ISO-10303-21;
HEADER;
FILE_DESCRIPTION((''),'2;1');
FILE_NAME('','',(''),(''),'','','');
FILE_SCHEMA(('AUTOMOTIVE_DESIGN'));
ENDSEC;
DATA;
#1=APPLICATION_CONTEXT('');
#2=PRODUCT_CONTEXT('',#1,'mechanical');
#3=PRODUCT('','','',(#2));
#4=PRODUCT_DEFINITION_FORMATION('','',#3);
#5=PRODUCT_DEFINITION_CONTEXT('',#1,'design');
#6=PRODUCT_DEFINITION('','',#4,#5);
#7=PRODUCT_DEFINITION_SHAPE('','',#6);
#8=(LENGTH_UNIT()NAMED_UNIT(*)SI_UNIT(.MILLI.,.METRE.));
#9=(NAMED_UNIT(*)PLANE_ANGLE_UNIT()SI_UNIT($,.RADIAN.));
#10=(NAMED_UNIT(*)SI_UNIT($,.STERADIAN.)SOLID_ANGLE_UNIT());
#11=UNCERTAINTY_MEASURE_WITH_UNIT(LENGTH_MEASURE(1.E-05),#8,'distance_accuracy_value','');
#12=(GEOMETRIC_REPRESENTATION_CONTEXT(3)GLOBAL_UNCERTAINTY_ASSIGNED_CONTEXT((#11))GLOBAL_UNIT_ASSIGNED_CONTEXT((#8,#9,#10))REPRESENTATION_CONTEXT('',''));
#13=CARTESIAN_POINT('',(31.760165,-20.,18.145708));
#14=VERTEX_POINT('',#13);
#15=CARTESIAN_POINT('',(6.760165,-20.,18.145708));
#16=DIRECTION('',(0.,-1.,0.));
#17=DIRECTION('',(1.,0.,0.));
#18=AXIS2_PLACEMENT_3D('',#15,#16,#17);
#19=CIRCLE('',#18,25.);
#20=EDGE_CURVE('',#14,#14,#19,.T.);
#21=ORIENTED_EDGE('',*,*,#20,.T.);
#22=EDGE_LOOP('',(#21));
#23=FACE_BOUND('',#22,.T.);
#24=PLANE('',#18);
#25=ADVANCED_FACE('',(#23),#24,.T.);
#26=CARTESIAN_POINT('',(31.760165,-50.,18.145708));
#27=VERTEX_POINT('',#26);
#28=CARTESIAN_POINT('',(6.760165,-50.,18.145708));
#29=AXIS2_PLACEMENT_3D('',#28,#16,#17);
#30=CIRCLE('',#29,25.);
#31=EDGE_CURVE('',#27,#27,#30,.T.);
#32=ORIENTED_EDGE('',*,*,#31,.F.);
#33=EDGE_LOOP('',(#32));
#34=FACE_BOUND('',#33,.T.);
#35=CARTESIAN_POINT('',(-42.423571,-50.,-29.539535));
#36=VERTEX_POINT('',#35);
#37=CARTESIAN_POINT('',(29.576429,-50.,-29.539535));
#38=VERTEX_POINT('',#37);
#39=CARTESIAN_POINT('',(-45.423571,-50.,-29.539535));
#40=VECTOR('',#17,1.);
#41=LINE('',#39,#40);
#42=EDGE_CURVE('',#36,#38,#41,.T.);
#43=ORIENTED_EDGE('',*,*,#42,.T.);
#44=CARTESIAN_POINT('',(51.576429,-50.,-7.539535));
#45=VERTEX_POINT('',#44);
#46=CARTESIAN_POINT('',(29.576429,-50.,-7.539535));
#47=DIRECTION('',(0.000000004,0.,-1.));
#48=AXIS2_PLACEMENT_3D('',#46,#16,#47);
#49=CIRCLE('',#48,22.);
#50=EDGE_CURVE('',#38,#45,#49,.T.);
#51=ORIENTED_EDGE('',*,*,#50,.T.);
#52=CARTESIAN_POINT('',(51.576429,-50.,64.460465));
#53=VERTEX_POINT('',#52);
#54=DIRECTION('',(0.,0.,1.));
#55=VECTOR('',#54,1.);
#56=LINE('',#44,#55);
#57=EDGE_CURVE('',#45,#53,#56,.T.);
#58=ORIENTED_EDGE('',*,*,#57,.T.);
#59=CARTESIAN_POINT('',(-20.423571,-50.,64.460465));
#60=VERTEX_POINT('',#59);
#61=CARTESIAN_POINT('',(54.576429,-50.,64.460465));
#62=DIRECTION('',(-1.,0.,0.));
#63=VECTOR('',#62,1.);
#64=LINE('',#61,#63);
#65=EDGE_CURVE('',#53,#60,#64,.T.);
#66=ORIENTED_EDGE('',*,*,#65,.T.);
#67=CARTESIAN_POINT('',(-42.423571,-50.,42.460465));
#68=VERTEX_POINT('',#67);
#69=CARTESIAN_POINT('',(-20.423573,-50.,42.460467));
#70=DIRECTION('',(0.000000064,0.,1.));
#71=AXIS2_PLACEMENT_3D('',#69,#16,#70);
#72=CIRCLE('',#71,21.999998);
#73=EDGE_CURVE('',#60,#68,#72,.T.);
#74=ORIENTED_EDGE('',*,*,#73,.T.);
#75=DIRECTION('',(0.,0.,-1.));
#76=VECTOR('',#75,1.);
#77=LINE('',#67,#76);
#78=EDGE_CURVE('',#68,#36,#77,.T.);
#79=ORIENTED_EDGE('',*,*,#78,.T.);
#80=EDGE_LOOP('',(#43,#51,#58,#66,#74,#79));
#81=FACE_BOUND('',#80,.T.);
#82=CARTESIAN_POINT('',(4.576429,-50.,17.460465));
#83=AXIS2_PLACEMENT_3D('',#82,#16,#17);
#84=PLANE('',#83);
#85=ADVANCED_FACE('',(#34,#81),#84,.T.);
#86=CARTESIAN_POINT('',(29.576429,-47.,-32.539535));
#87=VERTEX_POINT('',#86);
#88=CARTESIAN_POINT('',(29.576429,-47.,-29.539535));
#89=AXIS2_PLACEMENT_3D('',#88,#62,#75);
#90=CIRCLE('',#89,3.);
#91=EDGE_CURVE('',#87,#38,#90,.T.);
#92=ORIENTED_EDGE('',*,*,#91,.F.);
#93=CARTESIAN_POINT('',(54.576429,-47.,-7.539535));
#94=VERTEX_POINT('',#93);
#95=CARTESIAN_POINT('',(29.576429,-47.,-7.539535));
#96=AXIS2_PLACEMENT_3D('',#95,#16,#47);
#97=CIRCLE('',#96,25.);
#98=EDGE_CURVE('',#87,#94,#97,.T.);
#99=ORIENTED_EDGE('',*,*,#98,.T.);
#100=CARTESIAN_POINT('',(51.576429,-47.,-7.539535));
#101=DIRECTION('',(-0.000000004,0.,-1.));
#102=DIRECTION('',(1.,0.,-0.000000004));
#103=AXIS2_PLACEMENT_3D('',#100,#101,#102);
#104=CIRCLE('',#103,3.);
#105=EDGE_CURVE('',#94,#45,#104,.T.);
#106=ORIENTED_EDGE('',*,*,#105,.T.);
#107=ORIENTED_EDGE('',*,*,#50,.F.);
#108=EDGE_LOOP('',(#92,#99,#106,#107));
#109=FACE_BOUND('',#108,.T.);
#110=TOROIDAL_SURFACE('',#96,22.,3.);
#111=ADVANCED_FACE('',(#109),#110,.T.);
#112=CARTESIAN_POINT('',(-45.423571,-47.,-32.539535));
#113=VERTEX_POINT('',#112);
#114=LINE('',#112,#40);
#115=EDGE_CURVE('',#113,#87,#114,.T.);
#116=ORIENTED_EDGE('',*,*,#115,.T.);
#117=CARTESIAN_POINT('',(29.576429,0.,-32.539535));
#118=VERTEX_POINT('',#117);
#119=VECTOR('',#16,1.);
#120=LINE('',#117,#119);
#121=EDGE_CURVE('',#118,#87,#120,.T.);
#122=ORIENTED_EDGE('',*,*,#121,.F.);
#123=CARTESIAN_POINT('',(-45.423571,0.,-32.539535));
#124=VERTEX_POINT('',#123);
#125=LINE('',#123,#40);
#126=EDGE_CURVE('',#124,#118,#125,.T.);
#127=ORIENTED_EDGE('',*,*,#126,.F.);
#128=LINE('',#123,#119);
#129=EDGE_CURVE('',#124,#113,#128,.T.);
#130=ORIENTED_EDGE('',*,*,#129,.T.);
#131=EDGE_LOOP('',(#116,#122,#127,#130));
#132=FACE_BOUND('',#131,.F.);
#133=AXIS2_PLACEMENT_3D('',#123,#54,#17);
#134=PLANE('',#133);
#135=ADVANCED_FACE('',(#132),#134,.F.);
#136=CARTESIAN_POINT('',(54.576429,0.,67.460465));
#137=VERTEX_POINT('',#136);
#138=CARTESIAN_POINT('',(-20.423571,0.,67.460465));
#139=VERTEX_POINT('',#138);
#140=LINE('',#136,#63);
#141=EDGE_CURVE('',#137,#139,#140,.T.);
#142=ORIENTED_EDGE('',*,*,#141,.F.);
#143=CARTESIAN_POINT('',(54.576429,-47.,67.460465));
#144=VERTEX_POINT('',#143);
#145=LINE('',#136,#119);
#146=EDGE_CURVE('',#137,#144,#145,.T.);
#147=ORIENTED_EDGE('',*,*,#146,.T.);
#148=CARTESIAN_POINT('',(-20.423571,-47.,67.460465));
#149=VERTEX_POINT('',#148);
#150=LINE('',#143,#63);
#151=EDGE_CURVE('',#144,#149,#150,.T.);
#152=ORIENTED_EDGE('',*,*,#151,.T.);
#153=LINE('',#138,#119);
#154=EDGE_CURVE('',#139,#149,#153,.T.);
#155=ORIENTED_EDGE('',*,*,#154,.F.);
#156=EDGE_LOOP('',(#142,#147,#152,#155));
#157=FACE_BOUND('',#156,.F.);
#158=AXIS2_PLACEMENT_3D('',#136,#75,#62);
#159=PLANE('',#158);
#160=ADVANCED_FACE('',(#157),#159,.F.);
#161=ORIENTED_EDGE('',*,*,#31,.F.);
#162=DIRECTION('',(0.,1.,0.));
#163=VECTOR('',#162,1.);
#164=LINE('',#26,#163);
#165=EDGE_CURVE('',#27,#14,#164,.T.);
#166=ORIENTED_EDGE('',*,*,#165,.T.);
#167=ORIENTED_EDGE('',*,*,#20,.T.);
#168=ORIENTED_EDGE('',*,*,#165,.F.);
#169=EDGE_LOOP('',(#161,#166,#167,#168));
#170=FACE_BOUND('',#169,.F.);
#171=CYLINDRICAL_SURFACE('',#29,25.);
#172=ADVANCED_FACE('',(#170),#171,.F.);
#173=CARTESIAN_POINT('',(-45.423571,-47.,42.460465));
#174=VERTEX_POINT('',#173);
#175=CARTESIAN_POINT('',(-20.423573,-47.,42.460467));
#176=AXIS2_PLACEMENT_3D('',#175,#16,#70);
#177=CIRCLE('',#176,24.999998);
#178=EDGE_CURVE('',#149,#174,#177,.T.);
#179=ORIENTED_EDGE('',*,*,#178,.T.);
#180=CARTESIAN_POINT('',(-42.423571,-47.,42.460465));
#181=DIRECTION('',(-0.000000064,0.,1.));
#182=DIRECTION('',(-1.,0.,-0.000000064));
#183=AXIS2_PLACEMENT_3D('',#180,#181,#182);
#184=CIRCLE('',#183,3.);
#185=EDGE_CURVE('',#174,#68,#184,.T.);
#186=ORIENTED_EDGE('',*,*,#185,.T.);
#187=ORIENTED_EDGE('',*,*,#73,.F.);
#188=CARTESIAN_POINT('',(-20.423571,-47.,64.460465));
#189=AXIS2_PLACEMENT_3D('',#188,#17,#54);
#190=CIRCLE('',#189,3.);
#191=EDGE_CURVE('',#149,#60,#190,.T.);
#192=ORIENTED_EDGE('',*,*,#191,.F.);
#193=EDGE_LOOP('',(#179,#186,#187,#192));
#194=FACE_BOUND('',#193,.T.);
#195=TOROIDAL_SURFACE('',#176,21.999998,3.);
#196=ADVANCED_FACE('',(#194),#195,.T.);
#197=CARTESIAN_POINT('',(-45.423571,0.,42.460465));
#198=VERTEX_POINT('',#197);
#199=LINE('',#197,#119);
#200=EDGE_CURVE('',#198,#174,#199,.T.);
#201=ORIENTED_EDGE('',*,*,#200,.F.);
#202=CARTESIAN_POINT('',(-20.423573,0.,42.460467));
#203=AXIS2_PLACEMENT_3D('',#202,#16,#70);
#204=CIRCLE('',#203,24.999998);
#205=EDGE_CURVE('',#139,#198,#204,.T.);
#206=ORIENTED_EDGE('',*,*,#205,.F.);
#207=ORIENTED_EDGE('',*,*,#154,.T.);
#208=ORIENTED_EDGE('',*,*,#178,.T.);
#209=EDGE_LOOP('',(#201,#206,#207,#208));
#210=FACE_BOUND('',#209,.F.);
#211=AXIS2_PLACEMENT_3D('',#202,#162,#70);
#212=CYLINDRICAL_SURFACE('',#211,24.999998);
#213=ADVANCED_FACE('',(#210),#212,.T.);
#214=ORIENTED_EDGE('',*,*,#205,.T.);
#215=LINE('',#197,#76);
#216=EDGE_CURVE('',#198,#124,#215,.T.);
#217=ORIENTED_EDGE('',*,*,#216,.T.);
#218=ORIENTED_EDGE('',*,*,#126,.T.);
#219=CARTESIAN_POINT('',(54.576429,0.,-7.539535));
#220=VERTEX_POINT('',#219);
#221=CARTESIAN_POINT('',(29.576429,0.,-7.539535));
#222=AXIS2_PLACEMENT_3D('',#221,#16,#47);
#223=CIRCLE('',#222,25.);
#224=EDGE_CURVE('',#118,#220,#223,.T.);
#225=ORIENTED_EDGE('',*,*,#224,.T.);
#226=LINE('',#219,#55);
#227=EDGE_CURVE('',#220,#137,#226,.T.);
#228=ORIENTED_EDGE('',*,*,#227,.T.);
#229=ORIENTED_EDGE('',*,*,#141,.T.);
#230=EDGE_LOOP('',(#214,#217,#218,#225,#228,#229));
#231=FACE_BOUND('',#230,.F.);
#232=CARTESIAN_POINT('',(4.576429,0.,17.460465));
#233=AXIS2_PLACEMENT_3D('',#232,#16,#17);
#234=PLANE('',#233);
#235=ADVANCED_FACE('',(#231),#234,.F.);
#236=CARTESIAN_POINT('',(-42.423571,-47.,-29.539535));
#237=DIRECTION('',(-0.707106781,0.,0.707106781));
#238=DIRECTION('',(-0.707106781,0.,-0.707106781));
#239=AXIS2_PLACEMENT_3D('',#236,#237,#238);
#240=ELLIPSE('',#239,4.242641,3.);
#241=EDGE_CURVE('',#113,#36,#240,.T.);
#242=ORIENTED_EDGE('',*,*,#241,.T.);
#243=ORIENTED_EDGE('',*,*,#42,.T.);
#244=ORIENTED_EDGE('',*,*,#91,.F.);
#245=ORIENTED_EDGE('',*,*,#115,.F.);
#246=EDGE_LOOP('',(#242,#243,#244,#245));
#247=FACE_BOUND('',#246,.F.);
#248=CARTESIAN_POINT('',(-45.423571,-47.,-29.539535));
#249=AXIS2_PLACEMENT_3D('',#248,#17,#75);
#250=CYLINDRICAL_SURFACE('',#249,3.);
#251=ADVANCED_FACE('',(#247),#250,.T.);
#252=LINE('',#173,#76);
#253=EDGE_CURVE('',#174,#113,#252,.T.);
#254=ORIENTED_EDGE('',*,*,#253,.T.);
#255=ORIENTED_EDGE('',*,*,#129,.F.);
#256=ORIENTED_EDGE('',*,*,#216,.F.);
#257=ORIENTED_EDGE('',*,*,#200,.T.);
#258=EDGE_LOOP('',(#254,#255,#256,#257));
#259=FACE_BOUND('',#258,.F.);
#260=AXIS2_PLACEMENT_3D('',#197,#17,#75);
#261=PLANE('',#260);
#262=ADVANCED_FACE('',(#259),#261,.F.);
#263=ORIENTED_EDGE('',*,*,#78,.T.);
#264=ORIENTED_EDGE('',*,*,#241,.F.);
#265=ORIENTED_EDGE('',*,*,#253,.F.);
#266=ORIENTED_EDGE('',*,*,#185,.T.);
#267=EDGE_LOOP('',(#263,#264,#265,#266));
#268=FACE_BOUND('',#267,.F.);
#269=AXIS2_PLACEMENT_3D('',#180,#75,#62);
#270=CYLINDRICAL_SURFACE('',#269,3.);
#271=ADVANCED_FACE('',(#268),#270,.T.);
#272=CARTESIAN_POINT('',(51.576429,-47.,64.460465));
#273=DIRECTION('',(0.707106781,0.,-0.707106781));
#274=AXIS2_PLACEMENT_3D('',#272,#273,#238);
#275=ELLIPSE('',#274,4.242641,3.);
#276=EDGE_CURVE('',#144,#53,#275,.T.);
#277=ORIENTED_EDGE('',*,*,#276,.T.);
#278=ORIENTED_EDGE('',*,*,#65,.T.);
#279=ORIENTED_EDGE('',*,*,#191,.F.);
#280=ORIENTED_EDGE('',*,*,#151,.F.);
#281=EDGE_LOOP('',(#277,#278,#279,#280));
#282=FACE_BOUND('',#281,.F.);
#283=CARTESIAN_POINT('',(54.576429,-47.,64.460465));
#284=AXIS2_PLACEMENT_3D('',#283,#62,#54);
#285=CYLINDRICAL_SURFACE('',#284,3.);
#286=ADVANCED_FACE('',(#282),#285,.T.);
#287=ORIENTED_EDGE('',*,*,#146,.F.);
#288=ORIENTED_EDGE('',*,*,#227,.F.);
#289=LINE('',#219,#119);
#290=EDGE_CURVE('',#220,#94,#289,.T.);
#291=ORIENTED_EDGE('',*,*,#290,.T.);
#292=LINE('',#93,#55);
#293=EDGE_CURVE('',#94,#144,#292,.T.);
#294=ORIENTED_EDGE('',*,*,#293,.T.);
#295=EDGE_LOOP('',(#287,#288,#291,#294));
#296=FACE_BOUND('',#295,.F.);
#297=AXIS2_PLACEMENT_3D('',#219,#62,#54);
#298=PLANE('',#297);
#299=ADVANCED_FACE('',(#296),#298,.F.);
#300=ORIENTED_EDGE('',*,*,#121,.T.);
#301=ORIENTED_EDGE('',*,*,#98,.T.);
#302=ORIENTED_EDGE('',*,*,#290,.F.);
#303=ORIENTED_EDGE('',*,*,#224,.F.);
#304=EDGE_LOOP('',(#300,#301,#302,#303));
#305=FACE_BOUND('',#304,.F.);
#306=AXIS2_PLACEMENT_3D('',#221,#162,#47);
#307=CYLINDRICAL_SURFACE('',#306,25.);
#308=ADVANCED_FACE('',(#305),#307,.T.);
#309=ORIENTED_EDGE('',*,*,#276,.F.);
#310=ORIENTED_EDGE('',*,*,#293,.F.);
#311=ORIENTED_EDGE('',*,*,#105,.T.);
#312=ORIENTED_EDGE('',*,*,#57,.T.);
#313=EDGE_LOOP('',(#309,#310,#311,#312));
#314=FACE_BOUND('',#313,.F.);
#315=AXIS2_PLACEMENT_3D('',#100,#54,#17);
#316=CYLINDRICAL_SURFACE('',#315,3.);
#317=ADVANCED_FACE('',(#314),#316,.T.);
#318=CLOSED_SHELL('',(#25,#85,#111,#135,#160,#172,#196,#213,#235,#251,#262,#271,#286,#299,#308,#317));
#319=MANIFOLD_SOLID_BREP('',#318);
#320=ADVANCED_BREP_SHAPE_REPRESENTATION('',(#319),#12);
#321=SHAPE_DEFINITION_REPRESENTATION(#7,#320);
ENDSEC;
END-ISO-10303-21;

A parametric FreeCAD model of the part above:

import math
import FreeCAD as App
import Part
import Sketcher


def edges_at(feature, points):
    """Names of the edges that pass closest to the given points."""
    edges = feature.Shape.Edges
    near = lambda p: min(range(len(edges)), key=lambda i: edges[i].distToShape(Part.Vertex(*p))[0])
    return sorted({f"Edge{near(p) + 1}" for p in points})

doc = App.newDocument("Part")
params = doc.addObject("Spreadsheet::Sheet", "Params")
for row, (alias, value) in enumerate([
    ("sketch1_radius", "24.999998 mm"),
    ("sketch1_width", "75 mm"),
    ("pad1_length", "50 mm"),
    ("fillet_radius", "3 mm"),
    ("sketch2_diameter", "50 mm"),
    ("pocket1_length", "30 mm"),
], start=1):
    params.set(f"A{row}", alias)
    params.set(f"B{row}", "=" + value)
    params.setAlias(f"B{row}", alias)

body = doc.addObject("PartDesign::Body", "Body")

sketch1 = body.newObject("Sketcher::SketchObject", "Sketch")
sketch1.AttachmentSupport = (doc.getObject("XZ_Plane"), [""])
sketch1.MapMode = "FlatFace"
sketch1.addGeometry([
    Part.LineSegment(App.Vector(55, 67, 0), App.Vector(-20, 67, 0)),
    Part.ArcOfCircle(Part.Circle(App.Vector(-20, 42, 0), App.Vector(0, 0, 1), 25), math.radians(90), math.radians(180)),
    Part.LineSegment(App.Vector(-45, 42, 0), App.Vector(-45, -33, 0)),
    Part.LineSegment(App.Vector(-45, -33, 0), App.Vector(30, -33, 0)),
    Part.ArcOfCircle(Part.Circle(App.Vector(30, -8, 0), App.Vector(0, 0, 1), 25), math.radians(-90), math.radians(0)),
    Part.LineSegment(App.Vector(55, -8, 0), App.Vector(55, 67, 0)),
], False)
sketch1.addConstraint([
    Sketcher.Constraint("Tangent", 0, 2, 1, 1),
    Sketcher.Constraint("Tangent", 1, 2, 2, 1),
    Sketcher.Constraint("Coincident", 2, 2, 3, 1),
    Sketcher.Constraint("Tangent", 3, 2, 4, 1),
    Sketcher.Constraint("Tangent", 4, 2, 5, 1),
    Sketcher.Constraint("Coincident", 5, 2, 0, 1),
    Sketcher.Constraint("Horizontal", 0),
    Sketcher.Constraint("Vertical", 2),
    Sketcher.Constraint("Horizontal", 3),
    Sketcher.Constraint("Vertical", 5),
    Sketcher.Constraint("Equal", 1, 4),
    Sketcher.Constraint("Equal", 3, 2),
    Sketcher.Constraint("Radius", 1, 24.999998),
    Sketcher.Constraint("DistanceX", 0, 2, 0, 1, 75.0),
    Sketcher.Constraint("DistanceX", -1, 1, 4, 3, 29.576429),
    Sketcher.Constraint("DistanceY", -1, 1, 1, 3, 42.460467),
])
sketch1.setExpression("Constraints[12]", "Params.sketch1_radius")
sketch1.setExpression("Constraints[13]", "Params.sketch1_width")
pad1 = body.newObject("PartDesign::Pad", "Pad")
pad1.Profile = sketch1
pad1.setExpression("Length", "Params.pad1_length")
doc.recompute()

fillet = body.newObject("PartDesign::Fillet", "Fillet")
fillet.Base = (pad1, edges_at(pad1, [
    (17.076, -50, 67.46),
    (-38.101, -50, 60.138),
    (-45.424, -50, 4.96),
    (-7.924, -50, -32.54),
    (47.254, -50, -25.217),
    (54.576, -50, 29.96),
]))
fillet.setExpression("Radius", "Params.fillet_radius")

sketch2 = body.newObject("Sketcher::SketchObject", "Sketch001")
sketch2.AttachmentSupport = (doc.getObject("XZ_Plane"), [""])
sketch2.MapMode = "FlatFace"
sketch2.AttachmentOffset = App.Placement(App.Vector(0, 0, 50), App.Rotation())
sketch2.addGeometry(Part.Circle(App.Vector(7, 18, 0), App.Vector(0, 0, 1), 25), False)
sketch2.addConstraint([
    Sketcher.Constraint("Diameter", 0, 50.0),
    Sketcher.Constraint("DistanceX", -1, 1, 0, 3, 6.760165),
    Sketcher.Constraint("DistanceY", -1, 1, 0, 3, 18.145708),
])
sketch2.setExpression("Constraints[0]", "Params.sketch2_diameter")
pocket1 = body.newObject("PartDesign::Pocket", "Pocket")
pocket1.Profile = sketch2
pocket1.setExpression("Length", "Params.pocket1_length")

doc.recompute()
